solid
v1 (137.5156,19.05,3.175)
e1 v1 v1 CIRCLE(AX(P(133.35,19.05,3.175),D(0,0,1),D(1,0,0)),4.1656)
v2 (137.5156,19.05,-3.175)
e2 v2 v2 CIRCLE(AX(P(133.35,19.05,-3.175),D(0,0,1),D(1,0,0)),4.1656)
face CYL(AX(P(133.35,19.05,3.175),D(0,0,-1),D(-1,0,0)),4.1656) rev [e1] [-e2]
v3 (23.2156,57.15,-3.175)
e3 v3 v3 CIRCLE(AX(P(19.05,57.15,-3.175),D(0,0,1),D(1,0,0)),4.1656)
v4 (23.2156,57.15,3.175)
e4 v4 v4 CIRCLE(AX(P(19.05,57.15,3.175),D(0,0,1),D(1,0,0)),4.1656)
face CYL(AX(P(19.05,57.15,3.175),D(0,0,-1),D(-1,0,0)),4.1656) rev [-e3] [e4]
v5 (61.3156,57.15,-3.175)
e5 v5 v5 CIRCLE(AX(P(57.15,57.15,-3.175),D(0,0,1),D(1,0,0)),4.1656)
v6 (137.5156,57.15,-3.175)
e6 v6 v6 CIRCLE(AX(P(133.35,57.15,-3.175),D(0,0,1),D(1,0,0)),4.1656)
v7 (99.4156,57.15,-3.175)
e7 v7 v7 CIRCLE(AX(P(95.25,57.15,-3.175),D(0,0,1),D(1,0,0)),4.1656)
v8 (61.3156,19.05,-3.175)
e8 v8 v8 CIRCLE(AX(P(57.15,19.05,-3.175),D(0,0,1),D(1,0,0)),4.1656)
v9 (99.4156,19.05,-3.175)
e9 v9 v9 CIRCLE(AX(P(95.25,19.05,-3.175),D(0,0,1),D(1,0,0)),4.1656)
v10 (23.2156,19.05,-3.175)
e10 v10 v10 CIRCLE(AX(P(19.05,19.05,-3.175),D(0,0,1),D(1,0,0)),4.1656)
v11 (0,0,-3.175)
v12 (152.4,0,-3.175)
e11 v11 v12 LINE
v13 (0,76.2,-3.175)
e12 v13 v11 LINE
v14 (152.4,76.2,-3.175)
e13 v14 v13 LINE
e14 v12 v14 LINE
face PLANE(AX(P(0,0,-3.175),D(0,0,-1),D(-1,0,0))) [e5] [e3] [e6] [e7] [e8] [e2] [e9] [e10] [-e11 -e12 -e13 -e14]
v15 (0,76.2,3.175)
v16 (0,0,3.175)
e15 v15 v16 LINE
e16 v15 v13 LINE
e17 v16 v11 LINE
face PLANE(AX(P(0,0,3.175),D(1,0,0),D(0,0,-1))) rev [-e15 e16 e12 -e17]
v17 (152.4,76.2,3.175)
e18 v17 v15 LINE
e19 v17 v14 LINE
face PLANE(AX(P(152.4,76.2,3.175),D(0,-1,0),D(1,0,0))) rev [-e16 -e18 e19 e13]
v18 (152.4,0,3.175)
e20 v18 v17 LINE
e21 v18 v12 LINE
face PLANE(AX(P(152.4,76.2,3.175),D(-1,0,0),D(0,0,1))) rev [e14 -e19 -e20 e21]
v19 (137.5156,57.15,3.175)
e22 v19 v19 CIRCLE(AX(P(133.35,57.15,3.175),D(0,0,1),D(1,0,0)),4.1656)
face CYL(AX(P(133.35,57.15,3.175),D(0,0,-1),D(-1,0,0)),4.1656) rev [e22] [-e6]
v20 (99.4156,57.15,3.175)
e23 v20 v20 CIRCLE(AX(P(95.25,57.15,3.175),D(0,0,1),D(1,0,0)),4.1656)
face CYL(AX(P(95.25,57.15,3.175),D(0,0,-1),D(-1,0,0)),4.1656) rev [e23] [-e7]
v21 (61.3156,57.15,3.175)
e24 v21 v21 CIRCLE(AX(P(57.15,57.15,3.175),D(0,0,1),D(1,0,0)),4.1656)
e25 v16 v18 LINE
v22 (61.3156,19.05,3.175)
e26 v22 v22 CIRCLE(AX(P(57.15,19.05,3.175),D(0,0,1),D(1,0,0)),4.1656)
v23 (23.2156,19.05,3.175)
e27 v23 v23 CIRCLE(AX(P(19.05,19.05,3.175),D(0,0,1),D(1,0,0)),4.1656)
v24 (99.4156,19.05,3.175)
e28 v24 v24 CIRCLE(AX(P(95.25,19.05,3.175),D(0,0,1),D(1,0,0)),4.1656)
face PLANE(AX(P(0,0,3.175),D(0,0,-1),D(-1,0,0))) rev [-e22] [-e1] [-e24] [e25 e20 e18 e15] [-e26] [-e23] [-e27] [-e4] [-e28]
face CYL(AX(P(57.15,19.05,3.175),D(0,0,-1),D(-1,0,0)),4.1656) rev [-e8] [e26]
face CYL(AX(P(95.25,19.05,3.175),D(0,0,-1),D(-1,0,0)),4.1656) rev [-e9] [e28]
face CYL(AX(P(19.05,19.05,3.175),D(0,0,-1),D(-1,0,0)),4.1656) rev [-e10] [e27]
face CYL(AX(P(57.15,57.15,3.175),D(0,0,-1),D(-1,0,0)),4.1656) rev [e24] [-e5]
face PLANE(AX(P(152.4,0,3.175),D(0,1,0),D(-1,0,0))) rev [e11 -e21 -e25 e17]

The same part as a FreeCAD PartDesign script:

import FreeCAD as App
import Part
import Sketcher
Q = App.Units.Quantity

doc = App.newDocument("Part")
body = doc.addObject("PartDesign::Body", "Body")

# Sketch on XY plane
sketch1 = doc.addObject("Sketcher::SketchObject", "Sketch")
body.addObject(sketch1)
sketch1.AttachmentSupport = (doc.XY_Plane, [""])
sketch1.MapMode = "FlatFace"
sketch1.addGeometry([
    Part.LineSegment(App.Vector(0, 76.2, 0), App.Vector(0, 0, 0)),  # 0
    Part.LineSegment(App.Vector(0, 0, 0), App.Vector(152.4, 0, 0)),  # 1
    Part.LineSegment(App.Vector(152.4, 0, 0), App.Vector(152.4, 76.2, 0)),  # 2
    Part.LineSegment(App.Vector(152.4, 76.2, 0), App.Vector(0, 76.2, 0)),  # 3
    Part.Circle(App.Vector(19.05, 19.05, 0), App.Vector(0, 0, 1), 4.1656),  # 4
    Part.Circle(App.Vector(57.15, 19.05, 0), App.Vector(0, 0, 1), 4.1656),  # 5
    Part.Circle(App.Vector(95.25, 19.05, 0), App.Vector(0, 0, 1), 4.1656),  # 6
    Part.Circle(App.Vector(133.35, 19.05, 0), App.Vector(0, 0, 1), 4.1656),  # 7
    Part.Circle(App.Vector(19.05, 57.15, 0), App.Vector(0, 0, 1), 4.1656),  # 8
    Part.Circle(App.Vector(57.15, 57.15, 0), App.Vector(0, 0, 1), 4.1656),  # 9
    Part.Circle(App.Vector(95.25, 57.15, 0), App.Vector(0, 0, 1), 4.1656),  # 10
    Part.Circle(App.Vector(133.35, 57.15, 0), App.Vector(0, 0, 1), 4.1656),  # 11
], False)
sketch1.addConstraint([
    Sketcher.Constraint("Coincident", 0, 2, 1, 1),
    Sketcher.Constraint("Coincident", 1, 2, 2, 1),
    Sketcher.Constraint("Coincident", 2, 2, 3, 1),
    Sketcher.Constraint("Coincident", 3, 2, 0, 1),
    Sketcher.Constraint("Vertical", 0),
    Sketcher.Constraint("Horizontal", 1),
    Sketcher.Constraint("Vertical", 2),
    Sketcher.Constraint("Horizontal", 3),
    Sketcher.Constraint("Coincident", 0, 2, -1, 1),
    Sketcher.Constraint("Equal", 4, 5),
    Sketcher.Constraint("Equal", 5, 6),
    Sketcher.Constraint("Equal", 6, 7),
    Sketcher.Constraint("Equal", 7, 8),
    Sketcher.Constraint("Equal", 8, 9),
    Sketcher.Constraint("Equal", 9, 10),
    Sketcher.Constraint("Equal", 10, 11),
    Sketcher.Constraint("Horizontal", 4, 3, 5, 3),
    Sketcher.Constraint("Horizontal", 5, 3, 6, 3),
    Sketcher.Constraint("Horizontal", 6, 3, 7, 3),
    Sketcher.Constraint("Horizontal", 8, 3, 9, 3),
    Sketcher.Constraint("Horizontal", 9, 3, 10, 3),
    Sketcher.Constraint("Horizontal", 10, 3, 11, 3),
    Sketcher.Constraint("Vertical", 4, 3, 8, 3),
    Sketcher.Constraint("Vertical", 5, 3, 9, 3),
    Sketcher.Constraint("Vertical", 6, 3, 10, 3),
    Sketcher.Constraint("Vertical", 7, 3, 11, 3),
    Sketcher.Constraint("DistanceX", 1, 1, 1, 2, Q("6 in")),
    Sketcher.Constraint("DistanceY", 0, 2, 0, 1, Q("3 in")),
    Sketcher.Constraint("Diameter", 4, Q("0.328 in")),
    Sketcher.Constraint("DistanceX", 4, 3, 6, 3, Q("3 in")),
    Sketcher.Constraint("DistanceX", 5, 3, 7, 3, Q("3 in")),
    Sketcher.Constraint("DistanceX", 4, 3, 5, 3, Q("1.5 in")),
    Sketcher.Constraint("DistanceY", 4, 3, 8, 3, Q("1.5 in")),
    Sketcher.Constraint("DistanceX", -1, 1, 4, 3, Q("0.75 in")),
    Sketcher.Constraint("DistanceY", -1, 1, 4, 3, Q("0.75 in")),
])
pad1 = doc.addObject("PartDesign::Pad", "Pad")
body.addObject(pad1)
pad1.Profile = sketch1
pad1.Length = Q("0.25 in")
pad1.Midplane = True

doc.recompute()
